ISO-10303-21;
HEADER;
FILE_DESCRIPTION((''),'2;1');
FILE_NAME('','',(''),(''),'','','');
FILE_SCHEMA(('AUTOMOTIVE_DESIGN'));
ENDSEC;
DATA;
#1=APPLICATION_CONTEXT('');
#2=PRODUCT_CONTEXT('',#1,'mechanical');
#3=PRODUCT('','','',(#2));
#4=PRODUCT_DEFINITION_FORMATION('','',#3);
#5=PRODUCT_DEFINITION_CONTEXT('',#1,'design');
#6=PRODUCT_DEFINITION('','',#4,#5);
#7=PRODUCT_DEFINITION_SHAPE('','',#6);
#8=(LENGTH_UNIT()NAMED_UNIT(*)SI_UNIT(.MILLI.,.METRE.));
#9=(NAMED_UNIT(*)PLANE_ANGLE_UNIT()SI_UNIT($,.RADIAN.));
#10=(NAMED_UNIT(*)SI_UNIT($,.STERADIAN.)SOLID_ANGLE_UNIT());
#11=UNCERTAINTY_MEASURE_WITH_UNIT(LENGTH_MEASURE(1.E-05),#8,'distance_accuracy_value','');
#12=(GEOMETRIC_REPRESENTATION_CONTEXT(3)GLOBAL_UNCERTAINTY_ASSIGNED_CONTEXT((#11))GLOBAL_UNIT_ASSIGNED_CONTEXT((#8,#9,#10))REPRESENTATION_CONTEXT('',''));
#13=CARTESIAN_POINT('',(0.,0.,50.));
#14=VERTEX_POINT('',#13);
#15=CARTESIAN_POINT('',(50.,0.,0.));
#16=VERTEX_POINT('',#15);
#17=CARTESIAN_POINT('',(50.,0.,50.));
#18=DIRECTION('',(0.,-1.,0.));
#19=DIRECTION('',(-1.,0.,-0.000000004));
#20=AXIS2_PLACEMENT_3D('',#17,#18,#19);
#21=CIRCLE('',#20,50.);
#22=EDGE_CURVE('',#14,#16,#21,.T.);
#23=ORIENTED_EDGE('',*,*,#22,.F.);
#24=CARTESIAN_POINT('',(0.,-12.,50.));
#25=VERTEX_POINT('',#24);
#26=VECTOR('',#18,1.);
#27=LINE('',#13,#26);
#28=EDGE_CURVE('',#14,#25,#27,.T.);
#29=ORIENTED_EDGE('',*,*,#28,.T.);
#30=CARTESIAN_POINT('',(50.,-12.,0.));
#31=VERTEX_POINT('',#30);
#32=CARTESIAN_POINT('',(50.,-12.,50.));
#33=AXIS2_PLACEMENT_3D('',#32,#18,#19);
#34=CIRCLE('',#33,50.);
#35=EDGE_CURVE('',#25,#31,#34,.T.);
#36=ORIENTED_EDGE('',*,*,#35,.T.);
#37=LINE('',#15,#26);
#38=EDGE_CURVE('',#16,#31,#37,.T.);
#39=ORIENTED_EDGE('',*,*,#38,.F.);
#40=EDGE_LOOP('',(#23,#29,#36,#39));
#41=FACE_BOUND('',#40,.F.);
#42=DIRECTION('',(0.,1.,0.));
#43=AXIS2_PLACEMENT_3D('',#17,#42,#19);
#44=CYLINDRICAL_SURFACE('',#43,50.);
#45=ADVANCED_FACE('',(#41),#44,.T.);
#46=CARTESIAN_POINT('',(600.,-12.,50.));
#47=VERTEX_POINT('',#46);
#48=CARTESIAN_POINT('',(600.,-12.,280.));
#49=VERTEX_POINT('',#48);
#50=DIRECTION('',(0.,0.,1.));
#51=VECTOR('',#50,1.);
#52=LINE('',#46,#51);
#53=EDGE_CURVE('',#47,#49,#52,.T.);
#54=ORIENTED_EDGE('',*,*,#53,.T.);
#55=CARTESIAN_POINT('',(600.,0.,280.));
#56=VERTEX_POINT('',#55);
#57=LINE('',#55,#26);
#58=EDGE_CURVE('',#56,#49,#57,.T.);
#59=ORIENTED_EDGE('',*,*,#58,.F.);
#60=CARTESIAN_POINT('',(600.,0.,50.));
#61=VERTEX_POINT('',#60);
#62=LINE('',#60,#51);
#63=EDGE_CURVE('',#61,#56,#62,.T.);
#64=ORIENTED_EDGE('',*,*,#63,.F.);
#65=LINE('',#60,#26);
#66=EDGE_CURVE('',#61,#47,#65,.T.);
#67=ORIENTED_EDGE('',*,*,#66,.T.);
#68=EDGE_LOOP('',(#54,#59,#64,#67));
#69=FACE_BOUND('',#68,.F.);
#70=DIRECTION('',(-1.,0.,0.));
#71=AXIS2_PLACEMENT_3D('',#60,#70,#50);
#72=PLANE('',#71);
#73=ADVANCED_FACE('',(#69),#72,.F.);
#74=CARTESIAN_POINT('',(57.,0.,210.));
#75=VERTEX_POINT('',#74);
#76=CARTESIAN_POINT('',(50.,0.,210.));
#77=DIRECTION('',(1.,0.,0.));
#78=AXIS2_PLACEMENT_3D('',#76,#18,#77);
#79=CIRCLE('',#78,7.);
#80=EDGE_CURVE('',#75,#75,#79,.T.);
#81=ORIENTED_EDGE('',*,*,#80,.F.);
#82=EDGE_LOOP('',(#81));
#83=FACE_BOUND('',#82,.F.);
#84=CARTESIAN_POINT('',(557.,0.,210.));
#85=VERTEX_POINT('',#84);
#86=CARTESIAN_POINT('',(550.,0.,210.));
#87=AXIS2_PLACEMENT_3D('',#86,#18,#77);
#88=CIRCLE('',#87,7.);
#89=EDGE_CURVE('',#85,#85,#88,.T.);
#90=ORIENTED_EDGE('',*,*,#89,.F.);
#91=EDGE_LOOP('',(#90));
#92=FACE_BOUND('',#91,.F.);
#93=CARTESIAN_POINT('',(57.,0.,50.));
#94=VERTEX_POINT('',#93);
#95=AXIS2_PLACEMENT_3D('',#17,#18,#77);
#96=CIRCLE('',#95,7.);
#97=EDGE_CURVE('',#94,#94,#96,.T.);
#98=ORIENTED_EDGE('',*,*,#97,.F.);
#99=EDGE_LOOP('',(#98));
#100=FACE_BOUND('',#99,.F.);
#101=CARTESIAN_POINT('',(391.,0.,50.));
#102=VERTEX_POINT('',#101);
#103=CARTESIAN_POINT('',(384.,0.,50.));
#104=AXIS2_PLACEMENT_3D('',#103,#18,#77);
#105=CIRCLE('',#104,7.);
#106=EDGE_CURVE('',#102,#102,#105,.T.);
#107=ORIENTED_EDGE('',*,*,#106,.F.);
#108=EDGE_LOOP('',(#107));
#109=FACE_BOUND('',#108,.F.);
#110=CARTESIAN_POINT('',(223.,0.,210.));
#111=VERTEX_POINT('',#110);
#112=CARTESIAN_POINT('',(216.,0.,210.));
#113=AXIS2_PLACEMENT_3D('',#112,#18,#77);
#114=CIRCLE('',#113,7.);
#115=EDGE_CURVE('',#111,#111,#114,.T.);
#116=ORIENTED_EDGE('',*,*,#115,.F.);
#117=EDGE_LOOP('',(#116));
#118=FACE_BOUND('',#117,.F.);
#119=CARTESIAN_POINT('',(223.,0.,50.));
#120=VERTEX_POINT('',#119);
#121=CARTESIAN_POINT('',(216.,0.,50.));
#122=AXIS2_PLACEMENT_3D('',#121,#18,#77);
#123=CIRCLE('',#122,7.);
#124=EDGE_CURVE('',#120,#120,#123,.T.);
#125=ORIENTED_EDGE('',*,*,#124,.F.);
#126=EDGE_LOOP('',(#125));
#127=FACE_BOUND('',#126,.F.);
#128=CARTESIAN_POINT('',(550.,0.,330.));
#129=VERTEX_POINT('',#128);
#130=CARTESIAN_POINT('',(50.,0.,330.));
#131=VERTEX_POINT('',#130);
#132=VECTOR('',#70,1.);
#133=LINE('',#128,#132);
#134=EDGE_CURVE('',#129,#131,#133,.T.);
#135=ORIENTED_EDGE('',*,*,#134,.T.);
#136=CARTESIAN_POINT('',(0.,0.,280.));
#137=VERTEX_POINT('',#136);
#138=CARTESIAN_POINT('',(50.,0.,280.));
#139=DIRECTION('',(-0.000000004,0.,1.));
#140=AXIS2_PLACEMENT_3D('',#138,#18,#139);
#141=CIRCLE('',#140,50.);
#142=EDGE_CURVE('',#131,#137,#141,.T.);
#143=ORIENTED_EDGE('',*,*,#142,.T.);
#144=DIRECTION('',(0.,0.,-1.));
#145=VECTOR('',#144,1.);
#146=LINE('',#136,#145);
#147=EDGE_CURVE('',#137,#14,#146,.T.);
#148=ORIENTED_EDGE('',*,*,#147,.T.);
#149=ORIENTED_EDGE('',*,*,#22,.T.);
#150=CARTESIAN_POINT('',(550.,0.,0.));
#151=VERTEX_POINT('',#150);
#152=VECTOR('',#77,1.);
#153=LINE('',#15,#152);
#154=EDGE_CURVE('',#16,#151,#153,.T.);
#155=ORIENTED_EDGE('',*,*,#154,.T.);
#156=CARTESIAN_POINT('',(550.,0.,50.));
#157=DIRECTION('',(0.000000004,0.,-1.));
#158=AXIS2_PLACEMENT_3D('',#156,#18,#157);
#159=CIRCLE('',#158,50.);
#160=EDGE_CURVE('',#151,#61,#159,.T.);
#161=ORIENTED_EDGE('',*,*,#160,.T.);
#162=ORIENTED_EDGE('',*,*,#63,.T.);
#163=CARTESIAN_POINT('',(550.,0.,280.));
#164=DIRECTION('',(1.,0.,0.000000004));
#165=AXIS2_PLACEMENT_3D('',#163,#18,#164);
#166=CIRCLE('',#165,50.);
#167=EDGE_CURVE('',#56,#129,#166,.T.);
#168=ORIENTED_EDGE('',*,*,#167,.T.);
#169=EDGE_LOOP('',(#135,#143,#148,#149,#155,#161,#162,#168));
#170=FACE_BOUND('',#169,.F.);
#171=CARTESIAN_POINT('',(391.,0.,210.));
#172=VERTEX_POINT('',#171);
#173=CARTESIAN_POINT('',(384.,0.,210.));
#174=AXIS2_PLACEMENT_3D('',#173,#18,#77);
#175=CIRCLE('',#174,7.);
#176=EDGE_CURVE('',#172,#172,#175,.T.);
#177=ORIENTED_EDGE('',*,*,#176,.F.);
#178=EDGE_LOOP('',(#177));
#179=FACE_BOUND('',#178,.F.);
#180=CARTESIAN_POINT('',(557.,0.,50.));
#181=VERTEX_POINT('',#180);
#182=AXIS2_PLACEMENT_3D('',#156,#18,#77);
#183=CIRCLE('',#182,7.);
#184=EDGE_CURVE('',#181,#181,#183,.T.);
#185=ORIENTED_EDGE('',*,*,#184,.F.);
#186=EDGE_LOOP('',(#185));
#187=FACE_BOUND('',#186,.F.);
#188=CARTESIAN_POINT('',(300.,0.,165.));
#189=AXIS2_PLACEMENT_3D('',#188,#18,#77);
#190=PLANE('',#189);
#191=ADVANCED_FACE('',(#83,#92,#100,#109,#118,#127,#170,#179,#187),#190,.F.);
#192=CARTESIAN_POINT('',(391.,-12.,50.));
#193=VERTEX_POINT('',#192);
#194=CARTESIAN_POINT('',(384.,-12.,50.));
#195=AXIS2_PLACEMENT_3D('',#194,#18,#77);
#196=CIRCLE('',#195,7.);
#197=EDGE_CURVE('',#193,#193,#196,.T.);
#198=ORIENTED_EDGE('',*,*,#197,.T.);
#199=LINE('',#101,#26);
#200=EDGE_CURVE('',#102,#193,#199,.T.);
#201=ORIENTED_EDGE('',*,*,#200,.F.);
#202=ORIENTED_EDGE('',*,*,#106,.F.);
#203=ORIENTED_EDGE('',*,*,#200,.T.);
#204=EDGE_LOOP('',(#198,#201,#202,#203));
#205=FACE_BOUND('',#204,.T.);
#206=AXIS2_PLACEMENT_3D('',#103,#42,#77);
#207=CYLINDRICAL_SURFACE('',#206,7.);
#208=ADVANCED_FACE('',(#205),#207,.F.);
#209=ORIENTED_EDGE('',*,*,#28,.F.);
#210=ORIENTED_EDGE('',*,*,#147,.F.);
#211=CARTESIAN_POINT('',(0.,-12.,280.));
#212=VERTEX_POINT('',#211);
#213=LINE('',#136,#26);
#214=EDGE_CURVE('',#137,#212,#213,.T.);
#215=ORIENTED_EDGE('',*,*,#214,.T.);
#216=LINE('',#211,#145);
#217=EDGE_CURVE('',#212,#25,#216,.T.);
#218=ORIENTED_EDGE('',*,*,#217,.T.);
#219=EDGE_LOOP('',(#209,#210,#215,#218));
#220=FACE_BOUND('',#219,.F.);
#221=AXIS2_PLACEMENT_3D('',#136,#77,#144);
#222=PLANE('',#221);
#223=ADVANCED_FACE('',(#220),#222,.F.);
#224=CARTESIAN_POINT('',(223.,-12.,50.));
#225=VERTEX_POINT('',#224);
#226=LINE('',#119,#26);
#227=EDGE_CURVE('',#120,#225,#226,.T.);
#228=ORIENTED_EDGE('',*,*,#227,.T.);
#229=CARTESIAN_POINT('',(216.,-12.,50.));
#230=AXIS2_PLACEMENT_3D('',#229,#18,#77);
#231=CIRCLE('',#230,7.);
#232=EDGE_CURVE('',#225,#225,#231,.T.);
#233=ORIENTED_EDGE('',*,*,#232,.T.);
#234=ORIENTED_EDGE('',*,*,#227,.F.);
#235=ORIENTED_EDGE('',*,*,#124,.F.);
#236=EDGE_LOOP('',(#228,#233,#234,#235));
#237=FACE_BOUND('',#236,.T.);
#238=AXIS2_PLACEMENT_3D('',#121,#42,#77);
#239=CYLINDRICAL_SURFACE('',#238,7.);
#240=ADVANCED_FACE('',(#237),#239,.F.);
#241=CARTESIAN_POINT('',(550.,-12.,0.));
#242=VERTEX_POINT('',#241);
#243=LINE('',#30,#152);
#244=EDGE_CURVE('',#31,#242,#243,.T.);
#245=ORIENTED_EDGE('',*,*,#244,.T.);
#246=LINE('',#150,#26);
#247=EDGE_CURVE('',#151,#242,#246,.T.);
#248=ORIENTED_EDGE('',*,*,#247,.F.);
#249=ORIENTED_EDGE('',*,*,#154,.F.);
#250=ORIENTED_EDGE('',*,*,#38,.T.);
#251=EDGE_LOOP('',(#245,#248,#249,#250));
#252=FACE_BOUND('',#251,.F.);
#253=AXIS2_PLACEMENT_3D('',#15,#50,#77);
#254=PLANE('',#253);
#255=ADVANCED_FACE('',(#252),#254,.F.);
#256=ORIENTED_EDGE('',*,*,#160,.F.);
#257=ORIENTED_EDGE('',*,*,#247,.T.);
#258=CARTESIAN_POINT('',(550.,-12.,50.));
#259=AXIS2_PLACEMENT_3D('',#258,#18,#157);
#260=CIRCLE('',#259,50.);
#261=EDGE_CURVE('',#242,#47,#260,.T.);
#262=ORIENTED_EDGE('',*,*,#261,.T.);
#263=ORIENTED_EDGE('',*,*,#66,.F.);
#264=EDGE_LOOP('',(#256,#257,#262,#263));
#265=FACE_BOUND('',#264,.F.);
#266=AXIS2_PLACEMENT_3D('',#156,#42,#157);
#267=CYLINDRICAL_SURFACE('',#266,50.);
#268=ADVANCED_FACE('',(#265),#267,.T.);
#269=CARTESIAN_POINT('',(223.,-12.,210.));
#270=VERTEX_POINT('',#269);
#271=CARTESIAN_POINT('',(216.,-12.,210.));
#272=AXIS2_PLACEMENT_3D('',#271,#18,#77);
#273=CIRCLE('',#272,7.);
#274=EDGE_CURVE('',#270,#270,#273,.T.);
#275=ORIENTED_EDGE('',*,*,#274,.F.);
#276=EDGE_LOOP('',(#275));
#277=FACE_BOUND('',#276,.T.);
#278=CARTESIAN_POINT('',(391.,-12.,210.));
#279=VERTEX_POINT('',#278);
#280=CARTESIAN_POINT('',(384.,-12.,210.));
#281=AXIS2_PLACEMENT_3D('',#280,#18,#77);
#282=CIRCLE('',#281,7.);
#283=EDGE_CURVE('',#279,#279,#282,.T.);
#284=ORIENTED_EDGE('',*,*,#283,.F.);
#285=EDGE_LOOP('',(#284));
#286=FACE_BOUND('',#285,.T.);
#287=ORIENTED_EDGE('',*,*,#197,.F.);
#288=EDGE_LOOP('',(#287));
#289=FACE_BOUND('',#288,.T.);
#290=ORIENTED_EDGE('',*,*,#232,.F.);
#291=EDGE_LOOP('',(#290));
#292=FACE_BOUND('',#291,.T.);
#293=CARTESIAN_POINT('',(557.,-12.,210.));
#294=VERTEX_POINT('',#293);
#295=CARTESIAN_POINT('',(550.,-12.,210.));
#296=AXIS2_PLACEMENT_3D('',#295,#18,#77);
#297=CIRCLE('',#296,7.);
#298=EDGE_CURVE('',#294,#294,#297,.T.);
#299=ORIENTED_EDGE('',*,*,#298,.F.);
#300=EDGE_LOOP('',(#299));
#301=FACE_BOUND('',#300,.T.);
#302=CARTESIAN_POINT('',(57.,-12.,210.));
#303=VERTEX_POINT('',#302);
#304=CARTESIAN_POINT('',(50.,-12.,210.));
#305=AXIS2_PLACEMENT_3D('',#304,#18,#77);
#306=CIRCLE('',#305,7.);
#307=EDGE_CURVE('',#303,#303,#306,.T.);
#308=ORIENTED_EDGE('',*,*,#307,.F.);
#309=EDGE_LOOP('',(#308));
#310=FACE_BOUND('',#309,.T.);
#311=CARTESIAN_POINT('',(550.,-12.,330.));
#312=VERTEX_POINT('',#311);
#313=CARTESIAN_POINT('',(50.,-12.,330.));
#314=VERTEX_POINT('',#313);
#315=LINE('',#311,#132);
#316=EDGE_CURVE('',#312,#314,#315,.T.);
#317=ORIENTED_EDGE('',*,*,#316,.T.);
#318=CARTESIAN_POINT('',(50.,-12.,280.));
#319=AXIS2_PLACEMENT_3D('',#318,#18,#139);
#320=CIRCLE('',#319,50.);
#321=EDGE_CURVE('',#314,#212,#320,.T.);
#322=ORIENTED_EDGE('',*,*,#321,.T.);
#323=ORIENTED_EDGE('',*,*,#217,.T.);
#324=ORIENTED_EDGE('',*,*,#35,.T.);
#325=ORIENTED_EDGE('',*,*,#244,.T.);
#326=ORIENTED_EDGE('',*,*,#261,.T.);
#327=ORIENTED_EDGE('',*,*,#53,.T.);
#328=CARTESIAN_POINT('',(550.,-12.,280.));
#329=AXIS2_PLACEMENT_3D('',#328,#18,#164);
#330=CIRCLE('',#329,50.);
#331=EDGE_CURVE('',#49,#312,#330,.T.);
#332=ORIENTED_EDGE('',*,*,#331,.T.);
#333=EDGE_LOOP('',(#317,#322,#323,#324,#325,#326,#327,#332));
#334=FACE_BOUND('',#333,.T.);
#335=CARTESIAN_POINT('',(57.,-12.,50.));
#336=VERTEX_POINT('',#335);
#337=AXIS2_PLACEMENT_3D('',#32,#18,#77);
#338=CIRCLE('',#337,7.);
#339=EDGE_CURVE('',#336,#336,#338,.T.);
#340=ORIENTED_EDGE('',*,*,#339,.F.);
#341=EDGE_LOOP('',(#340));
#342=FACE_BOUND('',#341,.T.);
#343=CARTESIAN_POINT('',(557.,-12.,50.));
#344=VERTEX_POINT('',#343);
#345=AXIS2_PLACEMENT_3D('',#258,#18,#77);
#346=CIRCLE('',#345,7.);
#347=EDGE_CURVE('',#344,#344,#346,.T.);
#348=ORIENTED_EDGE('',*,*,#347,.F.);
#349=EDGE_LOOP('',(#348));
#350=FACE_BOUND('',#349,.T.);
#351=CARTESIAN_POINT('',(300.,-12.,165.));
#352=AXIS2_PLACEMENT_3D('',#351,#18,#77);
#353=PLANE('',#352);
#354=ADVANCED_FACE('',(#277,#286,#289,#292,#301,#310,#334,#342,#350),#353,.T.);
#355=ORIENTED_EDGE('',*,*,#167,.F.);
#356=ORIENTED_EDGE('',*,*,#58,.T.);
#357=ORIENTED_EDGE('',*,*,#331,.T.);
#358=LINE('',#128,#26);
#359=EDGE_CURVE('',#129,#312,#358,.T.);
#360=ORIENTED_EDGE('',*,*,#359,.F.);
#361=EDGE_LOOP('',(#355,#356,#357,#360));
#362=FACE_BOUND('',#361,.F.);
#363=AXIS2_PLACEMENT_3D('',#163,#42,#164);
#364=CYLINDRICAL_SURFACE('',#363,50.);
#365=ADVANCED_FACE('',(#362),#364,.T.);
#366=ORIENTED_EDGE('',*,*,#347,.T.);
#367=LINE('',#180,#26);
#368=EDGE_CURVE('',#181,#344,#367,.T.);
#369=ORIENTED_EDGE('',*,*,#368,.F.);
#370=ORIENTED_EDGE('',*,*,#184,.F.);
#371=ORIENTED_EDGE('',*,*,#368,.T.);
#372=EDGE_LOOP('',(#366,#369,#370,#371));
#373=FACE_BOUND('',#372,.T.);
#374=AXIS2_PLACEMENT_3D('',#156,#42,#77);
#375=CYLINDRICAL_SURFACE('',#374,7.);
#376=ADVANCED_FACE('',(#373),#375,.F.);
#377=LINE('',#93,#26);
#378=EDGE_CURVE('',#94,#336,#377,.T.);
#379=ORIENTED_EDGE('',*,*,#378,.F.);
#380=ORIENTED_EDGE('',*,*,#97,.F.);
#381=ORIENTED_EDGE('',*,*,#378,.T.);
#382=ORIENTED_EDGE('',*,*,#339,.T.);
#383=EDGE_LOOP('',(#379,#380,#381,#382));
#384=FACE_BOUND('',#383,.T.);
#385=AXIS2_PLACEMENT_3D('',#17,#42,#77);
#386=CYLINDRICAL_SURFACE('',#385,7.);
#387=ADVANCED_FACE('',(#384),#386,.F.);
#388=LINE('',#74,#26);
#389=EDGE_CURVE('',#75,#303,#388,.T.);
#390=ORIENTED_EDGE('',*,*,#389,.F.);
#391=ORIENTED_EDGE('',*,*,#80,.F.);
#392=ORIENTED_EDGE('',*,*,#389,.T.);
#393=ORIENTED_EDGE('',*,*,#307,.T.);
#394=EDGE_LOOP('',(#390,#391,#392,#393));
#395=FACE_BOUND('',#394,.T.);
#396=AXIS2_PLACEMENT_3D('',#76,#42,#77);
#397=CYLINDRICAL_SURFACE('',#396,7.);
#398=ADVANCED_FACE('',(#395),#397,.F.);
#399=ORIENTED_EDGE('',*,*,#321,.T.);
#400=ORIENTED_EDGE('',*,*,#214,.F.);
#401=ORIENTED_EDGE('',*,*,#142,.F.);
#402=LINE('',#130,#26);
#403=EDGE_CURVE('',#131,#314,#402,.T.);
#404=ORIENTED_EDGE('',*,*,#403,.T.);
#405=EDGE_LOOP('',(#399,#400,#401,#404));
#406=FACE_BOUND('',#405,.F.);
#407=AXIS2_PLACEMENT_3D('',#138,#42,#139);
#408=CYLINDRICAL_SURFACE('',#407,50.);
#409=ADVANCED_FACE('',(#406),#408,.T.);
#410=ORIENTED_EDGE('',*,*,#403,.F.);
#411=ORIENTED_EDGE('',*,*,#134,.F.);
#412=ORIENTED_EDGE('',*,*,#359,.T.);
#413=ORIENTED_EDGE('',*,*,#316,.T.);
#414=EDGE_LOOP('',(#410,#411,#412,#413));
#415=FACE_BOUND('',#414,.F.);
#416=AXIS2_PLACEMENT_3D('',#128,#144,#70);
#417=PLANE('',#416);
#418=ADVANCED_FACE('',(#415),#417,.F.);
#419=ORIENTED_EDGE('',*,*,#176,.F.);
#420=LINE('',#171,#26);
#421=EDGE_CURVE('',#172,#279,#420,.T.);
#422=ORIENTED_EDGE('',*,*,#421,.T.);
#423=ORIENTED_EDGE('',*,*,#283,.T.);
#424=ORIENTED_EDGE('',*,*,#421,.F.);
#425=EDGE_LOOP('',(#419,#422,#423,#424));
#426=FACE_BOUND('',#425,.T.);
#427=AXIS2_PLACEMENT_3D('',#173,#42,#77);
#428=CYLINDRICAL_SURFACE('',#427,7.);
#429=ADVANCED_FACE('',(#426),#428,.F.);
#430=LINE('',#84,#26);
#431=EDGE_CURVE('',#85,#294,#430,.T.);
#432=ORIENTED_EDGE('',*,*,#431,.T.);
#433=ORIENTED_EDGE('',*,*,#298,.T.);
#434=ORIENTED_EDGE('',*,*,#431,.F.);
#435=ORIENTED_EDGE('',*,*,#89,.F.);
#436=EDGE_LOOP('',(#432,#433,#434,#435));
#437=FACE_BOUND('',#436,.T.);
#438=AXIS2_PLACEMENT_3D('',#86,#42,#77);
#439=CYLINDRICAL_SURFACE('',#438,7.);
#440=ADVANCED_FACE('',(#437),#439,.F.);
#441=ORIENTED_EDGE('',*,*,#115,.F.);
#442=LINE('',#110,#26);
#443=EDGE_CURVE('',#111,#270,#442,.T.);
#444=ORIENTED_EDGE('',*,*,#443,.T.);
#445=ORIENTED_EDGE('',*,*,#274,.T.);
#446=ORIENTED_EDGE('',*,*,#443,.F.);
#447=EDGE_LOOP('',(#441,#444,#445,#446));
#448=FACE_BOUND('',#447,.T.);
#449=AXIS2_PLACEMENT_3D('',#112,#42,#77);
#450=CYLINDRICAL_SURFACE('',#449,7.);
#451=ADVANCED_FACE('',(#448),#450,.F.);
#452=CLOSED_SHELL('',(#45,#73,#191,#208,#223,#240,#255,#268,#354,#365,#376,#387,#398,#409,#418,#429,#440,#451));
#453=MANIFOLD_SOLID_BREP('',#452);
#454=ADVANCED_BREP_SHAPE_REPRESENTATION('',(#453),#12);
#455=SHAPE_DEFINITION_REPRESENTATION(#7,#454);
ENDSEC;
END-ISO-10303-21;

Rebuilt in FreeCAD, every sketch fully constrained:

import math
import FreeCAD as App
import Part
import Sketcher

V = App.Vector

doc = App.newDocument("Part")
body = doc.addObject("PartDesign::Body", "Body")

sketch1 = body.newObject("Sketcher::SketchObject", "Sketch")
sketch1.AttachmentSupport = (doc.getObject("XZ_Plane"), [""])
sketch1.MapMode = "FlatFace"
sketch1.addGeometry(Part.ArcOfCircle(Part.Circle(V(50, 50, 0), V(0, 0, 1), 50), math.radians(-180), math.radians(-90)), False)
sketch1.addGeometry(Part.LineSegment(V(50, 0, 0), V(550, 0, 0)), False)
sketch1.addGeometry(Part.ArcOfCircle(Part.Circle(V(550, 50, 0), V(0, 0, 1), 50), math.radians(-90), math.radians(0)), False)
sketch1.addGeometry(Part.LineSegment(V(600, 50, 0), V(600, 280, 0)), False)
sketch1.addGeometry(Part.ArcOfCircle(Part.Circle(V(550, 280, 0), V(0, 0, 1), 50), math.radians(0), math.radians(90)), False)
sketch1.addGeometry(Part.LineSegment(V(550, 330, 0), V(50, 330, 0)), False)
sketch1.addGeometry(Part.ArcOfCircle(Part.Circle(V(50, 280, 0), V(0, 0, 1), 50), math.radians(90), math.radians(180)), False)
sketch1.addGeometry(Part.LineSegment(V(0, 280, 0), V(0, 50, 0)), False)
sketch1.addGeometry(Part.Circle(V(50, 50, 0), V(0, 0, 1), 7), False)
sketch1.addGeometry(Part.Circle(V(216, 50, 0), V(0, 0, 1), 7), False)
sketch1.addGeometry(Part.Circle(V(384, 50, 0), V(0, 0, 1), 7), False)
sketch1.addGeometry(Part.Circle(V(550, 50, 0), V(0, 0, 1), 7), False)
sketch1.addGeometry(Part.Circle(V(50, 210, 0), V(0, 0, 1), 7), False)
sketch1.addGeometry(Part.Circle(V(216, 210, 0), V(0, 0, 1), 7), False)
sketch1.addGeometry(Part.Circle(V(384, 210, 0), V(0, 0, 1), 7), False)
sketch1.addGeometry(Part.Circle(V(550, 210, 0), V(0, 0, 1), 7), False)
sketch1.addConstraint(Sketcher.Constraint("Tangent", 0, 2, 1, 1))
sketch1.addConstraint(Sketcher.Constraint("Tangent", 1, 2, 2, 1))
sketch1.addConstraint(Sketcher.Constraint("Tangent", 2, 2, 3, 1))
sketch1.addConstraint(Sketcher.Constraint("Tangent", 3, 2, 4, 1))
sketch1.addConstraint(Sketcher.Constraint("Tangent", 4, 2, 5, 1))
sketch1.addConstraint(Sketcher.Constraint("Tangent", 5, 2, 6, 1))
sketch1.addConstraint(Sketcher.Constraint("Tangent", 6, 2, 7, 1))
sketch1.addConstraint(Sketcher.Constraint("Tangent", 7, 2, 0, 1))
sketch1.addConstraint(Sketcher.Constraint("Horizontal", 1))
sketch1.addConstraint(Sketcher.Constraint("Vertical", 3))
sketch1.addConstraint(Sketcher.Constraint("Horizontal", 5))
sketch1.addConstraint(Sketcher.Constraint("Vertical", 7))
sketch1.addConstraint(Sketcher.Constraint("Coincident", 8, 3, 0, 3))
sketch1.addConstraint(Sketcher.Constraint("Coincident", 11, 3, 2, 3))
sketch1.addConstraint(Sketcher.Constraint("Equal", 0, 2))
sketch1.addConstraint(Sketcher.Constraint("Equal", 2, 4))
sketch1.addConstraint(Sketcher.Constraint("Equal", 4, 6))
sketch1.addConstraint(Sketcher.Constraint("Equal", 8, 9))
sketch1.addConstraint(Sketcher.Constraint("Equal", 9, 10))
sketch1.addConstraint(Sketcher.Constraint("Equal", 10, 11))
sketch1.addConstraint(Sketcher.Constraint("Equal", 11, 12))
sketch1.addConstraint(Sketcher.Constraint("Equal", 12, 13))
sketch1.addConstraint(Sketcher.Constraint("Equal", 13, 14))
sketch1.addConstraint(Sketcher.Constraint("Equal", 14, 15))
sketch1.addConstraint(Sketcher.Constraint("PointOnObject", 0, 2, -1))
sketch1.addConstraint(Sketcher.Constraint("PointOnObject", 6, 2, -2))
sketch1.addConstraint(Sketcher.Constraint("Horizontal", 8, 3, 9, 3))
sketch1.addConstraint(Sketcher.Constraint("Horizontal", 9, 3, 10, 3))
sketch1.addConstraint(Sketcher.Constraint("Horizontal", 12, 3, 13, 3))
sketch1.addConstraint(Sketcher.Constraint("Horizontal", 13, 3, 14, 3))
sketch1.addConstraint(Sketcher.Constraint("Horizontal", 14, 3, 15, 3))
sketch1.addConstraint(Sketcher.Constraint("Vertical", 8, 3, 12, 3))
sketch1.addConstraint(Sketcher.Constraint("Vertical", 9, 3, 13, 3))
sketch1.addConstraint(Sketcher.Constraint("Vertical", 10, 3, 14, 3))
sketch1.addConstraint(Sketcher.Constraint("Vertical", 11, 3, 15, 3))
sketch1.addConstraint(Sketcher.Constraint("Diameter", 8, 14.0))
sketch1.addConstraint(Sketcher.Constraint("Radius", 0, 50.0))
sketch1.addConstraint(Sketcher.Constraint("DistanceX", 1, 1, 1, 2, 500.0))
sketch1.addConstraint(Sketcher.Constraint("DistanceY", 3, 1, 3, 2, 230.0))
sketch1.addConstraint(Sketcher.Constraint("DistanceX", -1, 1, 9, 3, 216.0))
sketch1.addConstraint(Sketcher.Constraint("DistanceX", -1, 1, 10, 3, 384.0))
sketch1.addConstraint(Sketcher.Constraint("DistanceY", -1, 1, 12, 3, 210.0))
pad1 = body.newObject("PartDesign::Pad", "Pad")
pad1.Profile = sketch1
pad1.Length = 12

doc.recompute()
